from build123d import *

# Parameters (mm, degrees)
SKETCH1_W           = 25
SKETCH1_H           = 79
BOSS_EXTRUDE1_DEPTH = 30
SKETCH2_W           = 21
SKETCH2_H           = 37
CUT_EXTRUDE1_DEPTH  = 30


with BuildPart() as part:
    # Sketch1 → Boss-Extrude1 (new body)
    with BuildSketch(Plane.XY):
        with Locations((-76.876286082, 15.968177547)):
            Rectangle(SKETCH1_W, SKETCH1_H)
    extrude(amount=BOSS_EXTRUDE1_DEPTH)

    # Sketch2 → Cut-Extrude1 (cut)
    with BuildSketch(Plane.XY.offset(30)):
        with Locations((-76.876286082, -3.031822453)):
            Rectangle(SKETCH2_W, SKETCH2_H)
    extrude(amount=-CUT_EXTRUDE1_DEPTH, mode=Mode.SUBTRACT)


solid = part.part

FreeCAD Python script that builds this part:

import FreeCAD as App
import Part
import Sketcher
from FreeCAD import Vector

doc = App.newDocument("Part")
body = doc.addObject("PartDesign::Body", "Body")

# Sketch on XY plane
sketch1 = doc.addObject("Sketcher::SketchObject", "Sketch")
body.addObject(sketch1)
sketch1.AttachmentSupport = (doc.XY_Plane, [""])
sketch1.MapMode = "FlatFace"
sketch1.addGeometry(Part.LineSegment(Vector(-89, 55, 0), Vector(-89, -24, 0)), False)
sketch1.addGeometry(Part.LineSegment(Vector(-89, -24, 0), Vector(-64, -24, 0)), False)
sketch1.addGeometry(Part.LineSegment(Vector(-64, -24, 0), Vector(-64, 55, 0)), False)
sketch1.addGeometry(Part.LineSegment(Vector(-64, 55, 0), Vector(-89, 55, 0)), False)
sketch1.addConstraint(Sketcher.Constraint("Coincident", 0, 2, 1, 1))
sketch1.addConstraint(Sketcher.Constraint("Coincident", 1, 2, 2, 1))
sketch1.addConstraint(Sketcher.Constraint("Coincident", 2, 2, 3, 1))
sketch1.addConstraint(Sketcher.Constraint("Coincident", 3, 2, 0, 1))
sketch1.addConstraint(Sketcher.Constraint("Vertical", 0))
sketch1.addConstraint(Sketcher.Constraint("Horizontal", 1))
sketch1.addConstraint(Sketcher.Constraint("Vertical", 2))
sketch1.addConstraint(Sketcher.Constraint("Horizontal", 3))
sketch1.addConstraint(Sketcher.Constraint("DistanceX", 1, 1, 1, 2, 25.0))
sketch1.addConstraint(Sketcher.Constraint("DistanceY", 0, 2, 0, 1, 79.0))
sketch1.addConstraint(Sketcher.Constraint("DistanceX", 0, 2, -1, 1, 89.376286))
sketch1.addConstraint(Sketcher.Constraint("DistanceY", 0, 2, -1, 1, 23.531822))
pad1 = doc.addObject("PartDesign::Pad", "Pad")
body.addObject(pad1)
pad1.Profile = sketch1
pad1.Length = 30

# Sketch on XY plane
sketch2 = doc.addObject("Sketcher::SketchObject", "Sketch001")
body.addObject(sketch2)
sketch2.AttachmentSupport = (doc.XY_Plane, [""])
sketch2.MapMode = "FlatFace"
sketch2.AttachmentOffset = App.Placement(Vector(0, 0, 30), App.Rotation())
sketch2.addGeometry(Part.LineSegment(Vector(-87, 15, 0), Vector(-87, -22, 0)), False)
sketch2.addGeometry(Part.LineSegment(Vector(-87, -22, 0), Vector(-66, -22, 0)), False)
sketch2.addGeometry(Part.LineSegment(Vector(-66, -22, 0), Vector(-66, 15, 0)), False)
sketch2.addGeometry(Part.LineSegment(Vector(-66, 15, 0), Vector(-87, 15, 0)), False)
sketch2.addConstraint(Sketcher.Constraint("Coincident", 0, 2, 1, 1))
sketch2.addConstraint(Sketcher.Constraint("Coincident", 1, 2, 2, 1))
sketch2.addConstraint(Sketcher.Constraint("Coincident", 2, 2, 3, 1))
sketch2.addConstraint(Sketcher.Constraint("Coincident", 3, 2, 0, 1))
sketch2.addConstraint(Sketcher.Constraint("Vertical", 0))
sketch2.addConstraint(Sketcher.Constraint("Horizontal", 1))
sketch2.addConstraint(Sketcher.Constraint("Vertical", 2))
sketch2.addConstraint(Sketcher.Constraint("Horizontal", 3))
sketch2.addConstraint(Sketcher.Constraint("DistanceX", 1, 1, 1, 2, 21.0))
sketch2.addConstraint(Sketcher.Constraint("DistanceY", 0, 2, 0, 1, 37.0))
sketch2.addConstraint(Sketcher.Constraint("DistanceX", 0, 2, -1, 1, 87.376286))
sketch2.addConstraint(Sketcher.Constraint("DistanceY", 0, 2, -1, 1, 21.531822))
pocket1 = doc.addObject("PartDesign::Pocket", "Pocket")
body.addObject(pocket1)
pocket1.Profile = sketch2
pocket1.Length = 30

doc.recompute()
